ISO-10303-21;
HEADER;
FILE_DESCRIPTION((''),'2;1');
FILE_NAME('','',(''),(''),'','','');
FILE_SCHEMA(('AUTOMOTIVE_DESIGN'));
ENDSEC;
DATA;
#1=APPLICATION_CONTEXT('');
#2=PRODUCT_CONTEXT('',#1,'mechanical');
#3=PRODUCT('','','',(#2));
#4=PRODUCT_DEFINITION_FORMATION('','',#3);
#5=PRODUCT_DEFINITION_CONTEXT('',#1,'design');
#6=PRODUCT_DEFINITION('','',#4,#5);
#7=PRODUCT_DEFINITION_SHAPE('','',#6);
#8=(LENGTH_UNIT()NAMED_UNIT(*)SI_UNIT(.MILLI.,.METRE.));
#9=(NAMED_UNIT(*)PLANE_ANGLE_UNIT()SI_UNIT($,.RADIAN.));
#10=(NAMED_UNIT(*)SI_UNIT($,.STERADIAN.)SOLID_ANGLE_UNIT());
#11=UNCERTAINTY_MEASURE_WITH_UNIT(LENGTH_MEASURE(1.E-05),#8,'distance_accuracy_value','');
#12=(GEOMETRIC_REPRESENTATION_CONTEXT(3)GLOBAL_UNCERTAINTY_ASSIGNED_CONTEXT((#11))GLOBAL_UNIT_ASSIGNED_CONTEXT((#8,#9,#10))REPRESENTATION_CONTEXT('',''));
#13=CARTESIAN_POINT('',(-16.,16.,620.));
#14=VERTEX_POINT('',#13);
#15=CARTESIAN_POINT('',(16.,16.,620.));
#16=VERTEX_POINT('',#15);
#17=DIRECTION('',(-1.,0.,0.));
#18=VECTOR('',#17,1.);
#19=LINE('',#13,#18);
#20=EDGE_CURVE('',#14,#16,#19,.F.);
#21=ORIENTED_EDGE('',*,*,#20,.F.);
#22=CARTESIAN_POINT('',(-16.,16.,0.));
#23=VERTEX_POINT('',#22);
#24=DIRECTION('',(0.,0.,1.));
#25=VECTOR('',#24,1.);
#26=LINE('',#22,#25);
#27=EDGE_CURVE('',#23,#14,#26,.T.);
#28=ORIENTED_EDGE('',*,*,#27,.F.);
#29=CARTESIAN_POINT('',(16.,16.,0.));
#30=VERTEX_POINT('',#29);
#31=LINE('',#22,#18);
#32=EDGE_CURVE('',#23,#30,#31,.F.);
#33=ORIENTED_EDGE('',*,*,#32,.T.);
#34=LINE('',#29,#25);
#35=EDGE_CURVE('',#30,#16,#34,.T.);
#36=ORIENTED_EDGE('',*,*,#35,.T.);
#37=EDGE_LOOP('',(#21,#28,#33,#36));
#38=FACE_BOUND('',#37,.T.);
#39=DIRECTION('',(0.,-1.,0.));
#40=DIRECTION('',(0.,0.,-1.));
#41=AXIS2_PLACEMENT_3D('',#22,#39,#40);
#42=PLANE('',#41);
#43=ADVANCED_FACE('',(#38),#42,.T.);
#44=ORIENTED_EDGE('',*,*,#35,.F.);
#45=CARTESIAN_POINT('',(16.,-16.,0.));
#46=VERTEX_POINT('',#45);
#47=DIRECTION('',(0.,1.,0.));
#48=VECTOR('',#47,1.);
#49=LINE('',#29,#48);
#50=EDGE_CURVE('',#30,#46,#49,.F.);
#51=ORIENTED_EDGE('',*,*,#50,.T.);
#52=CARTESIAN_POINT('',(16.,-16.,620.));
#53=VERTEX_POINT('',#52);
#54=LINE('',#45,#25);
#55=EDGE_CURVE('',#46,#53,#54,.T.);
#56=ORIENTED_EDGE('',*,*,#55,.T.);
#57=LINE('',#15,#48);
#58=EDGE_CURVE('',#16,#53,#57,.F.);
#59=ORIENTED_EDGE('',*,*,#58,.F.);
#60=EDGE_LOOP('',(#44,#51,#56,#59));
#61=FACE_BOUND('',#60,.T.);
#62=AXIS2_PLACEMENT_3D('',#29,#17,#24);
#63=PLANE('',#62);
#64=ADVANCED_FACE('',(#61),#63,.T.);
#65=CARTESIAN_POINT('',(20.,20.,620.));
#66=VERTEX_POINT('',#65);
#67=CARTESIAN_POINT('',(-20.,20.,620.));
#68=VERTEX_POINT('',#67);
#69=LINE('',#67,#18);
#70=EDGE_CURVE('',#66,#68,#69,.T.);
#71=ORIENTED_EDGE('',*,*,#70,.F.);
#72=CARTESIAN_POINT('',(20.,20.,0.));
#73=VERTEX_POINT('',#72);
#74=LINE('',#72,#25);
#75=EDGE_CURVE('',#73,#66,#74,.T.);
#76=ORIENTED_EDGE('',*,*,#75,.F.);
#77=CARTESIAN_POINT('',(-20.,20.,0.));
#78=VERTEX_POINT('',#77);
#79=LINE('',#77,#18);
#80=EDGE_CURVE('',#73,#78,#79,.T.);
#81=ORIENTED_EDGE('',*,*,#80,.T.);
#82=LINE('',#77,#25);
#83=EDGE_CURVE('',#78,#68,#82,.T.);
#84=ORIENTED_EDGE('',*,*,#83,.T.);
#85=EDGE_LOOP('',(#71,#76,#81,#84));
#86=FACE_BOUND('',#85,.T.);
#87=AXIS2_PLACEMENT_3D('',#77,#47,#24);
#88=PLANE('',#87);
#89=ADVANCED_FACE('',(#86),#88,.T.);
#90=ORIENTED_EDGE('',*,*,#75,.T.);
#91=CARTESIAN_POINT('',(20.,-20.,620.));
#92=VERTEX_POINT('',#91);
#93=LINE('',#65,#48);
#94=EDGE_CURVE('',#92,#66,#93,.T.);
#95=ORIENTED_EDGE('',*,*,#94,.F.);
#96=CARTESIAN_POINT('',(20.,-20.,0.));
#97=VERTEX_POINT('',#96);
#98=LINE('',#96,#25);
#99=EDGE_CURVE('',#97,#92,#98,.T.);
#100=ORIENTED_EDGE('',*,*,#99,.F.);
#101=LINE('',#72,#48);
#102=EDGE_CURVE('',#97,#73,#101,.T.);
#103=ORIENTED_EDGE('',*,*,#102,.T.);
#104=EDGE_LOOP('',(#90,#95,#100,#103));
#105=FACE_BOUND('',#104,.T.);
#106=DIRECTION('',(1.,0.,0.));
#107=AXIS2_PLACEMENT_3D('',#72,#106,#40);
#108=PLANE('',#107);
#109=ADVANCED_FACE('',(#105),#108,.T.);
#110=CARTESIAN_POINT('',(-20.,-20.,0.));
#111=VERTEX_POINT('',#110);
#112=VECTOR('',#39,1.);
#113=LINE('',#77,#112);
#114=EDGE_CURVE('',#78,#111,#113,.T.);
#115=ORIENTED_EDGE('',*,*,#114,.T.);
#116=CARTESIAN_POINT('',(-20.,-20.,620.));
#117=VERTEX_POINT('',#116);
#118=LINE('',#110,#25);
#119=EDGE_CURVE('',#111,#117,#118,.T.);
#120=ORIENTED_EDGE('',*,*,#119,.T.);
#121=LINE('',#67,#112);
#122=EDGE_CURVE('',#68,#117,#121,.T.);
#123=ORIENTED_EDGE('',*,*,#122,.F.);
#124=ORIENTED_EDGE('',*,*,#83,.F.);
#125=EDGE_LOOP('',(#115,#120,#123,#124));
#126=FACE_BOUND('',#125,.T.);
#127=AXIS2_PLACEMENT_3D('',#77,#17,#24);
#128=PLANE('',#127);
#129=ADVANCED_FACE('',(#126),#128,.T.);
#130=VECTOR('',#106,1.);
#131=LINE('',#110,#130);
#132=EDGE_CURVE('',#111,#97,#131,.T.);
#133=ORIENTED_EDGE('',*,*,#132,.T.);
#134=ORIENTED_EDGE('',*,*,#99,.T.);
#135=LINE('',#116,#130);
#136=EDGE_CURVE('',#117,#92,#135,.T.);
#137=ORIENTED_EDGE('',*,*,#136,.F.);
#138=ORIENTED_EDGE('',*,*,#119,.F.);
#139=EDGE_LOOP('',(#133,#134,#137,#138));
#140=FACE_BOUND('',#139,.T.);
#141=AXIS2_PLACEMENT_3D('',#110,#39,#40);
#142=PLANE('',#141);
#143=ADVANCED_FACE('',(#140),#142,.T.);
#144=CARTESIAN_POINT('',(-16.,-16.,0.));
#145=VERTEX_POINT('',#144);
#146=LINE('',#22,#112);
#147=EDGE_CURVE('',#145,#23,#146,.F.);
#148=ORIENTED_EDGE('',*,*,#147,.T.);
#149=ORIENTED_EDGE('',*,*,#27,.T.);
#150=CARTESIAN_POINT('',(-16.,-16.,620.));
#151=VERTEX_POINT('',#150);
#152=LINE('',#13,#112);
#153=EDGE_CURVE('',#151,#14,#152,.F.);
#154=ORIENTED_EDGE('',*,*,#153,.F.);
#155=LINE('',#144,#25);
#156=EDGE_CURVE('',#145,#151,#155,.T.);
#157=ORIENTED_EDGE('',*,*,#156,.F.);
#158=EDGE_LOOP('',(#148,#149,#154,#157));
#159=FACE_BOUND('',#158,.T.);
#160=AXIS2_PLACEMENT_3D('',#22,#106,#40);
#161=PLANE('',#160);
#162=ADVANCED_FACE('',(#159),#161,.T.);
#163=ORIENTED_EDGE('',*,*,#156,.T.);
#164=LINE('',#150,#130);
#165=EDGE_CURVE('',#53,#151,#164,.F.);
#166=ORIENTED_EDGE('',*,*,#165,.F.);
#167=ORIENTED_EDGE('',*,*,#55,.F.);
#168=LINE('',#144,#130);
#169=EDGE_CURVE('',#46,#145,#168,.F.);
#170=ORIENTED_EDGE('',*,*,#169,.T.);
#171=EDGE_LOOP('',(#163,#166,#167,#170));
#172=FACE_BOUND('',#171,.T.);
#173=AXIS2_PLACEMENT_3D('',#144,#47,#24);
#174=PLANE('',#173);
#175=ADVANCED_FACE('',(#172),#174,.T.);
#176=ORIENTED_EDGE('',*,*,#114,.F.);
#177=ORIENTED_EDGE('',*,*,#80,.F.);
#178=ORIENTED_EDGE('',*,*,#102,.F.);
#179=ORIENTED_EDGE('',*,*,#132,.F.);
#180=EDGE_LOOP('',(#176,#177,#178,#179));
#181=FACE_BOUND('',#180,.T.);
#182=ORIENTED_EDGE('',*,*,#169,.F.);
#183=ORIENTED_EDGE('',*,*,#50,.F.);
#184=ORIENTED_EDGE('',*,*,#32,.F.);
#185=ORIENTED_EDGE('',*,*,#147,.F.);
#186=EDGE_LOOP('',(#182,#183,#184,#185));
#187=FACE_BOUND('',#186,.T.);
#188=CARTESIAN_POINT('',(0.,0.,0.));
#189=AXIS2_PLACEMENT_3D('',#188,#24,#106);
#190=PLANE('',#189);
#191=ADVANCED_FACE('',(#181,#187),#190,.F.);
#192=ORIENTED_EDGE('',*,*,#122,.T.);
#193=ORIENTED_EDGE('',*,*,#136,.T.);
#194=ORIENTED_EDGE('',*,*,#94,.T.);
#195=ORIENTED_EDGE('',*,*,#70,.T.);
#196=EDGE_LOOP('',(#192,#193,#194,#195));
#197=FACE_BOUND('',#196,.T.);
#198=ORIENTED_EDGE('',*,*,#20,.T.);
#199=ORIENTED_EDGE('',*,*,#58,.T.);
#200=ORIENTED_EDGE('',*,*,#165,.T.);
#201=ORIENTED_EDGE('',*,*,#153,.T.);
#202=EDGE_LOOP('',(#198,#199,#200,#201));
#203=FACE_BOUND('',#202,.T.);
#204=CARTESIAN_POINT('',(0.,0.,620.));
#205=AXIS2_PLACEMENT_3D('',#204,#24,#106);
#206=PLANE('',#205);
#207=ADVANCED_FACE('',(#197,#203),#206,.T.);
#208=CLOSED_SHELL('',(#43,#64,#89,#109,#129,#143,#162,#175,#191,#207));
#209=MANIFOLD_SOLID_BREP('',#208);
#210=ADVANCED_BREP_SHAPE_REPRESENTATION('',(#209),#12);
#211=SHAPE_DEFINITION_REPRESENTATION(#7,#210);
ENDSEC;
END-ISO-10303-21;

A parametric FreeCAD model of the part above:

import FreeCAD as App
import Part
import Sketcher

V = App.Vector
Q = App.Units.Quantity


def add_polygon(sketch, points):
    """Adds a closed chain of lines whose ends are joined by coincident constraints."""
    first, n = sketch.GeometryCount, len(points)
    for a, b in zip(points, points[1:] + points[:1]):
        sketch.addGeometry(Part.LineSegment(App.Vector(*a, 0), App.Vector(*b, 0)), False)
    for i in range(n):
        sketch.addConstraint(Sketcher.Constraint("Coincident", first + i, 2, first + (i + 1) % n, 1))

doc = App.newDocument("Part")
params = doc.addObject("Spreadsheet::Sheet", "Params")
for row, (alias, value) in enumerate([
    ("sketch1_width", "40 mm"),
    ("sketch1_width2", "32 mm"),
], start=1):
    params.set(f"A{row}", alias)
    params.set(f"B{row}", "=" + value)
    params.setAlias(f"B{row}", alias)

body = doc.addObject("PartDesign::Body", "Body")

# Sketch on XY plane
sketch1 = doc.addObject("Sketcher::SketchObject", "Sketch")
body.addObject(sketch1)
sketch1.AttachmentSupport = (doc.XY_Plane, [""])
sketch1.MapMode = "FlatFace"
add_polygon(sketch1, [(-20, 20), (-20, -20), (20, -20), (20, 20)])  # lines 0-3
add_polygon(sketch1, [(16, -16), (-16, -16), (-16, 16), (16, 16)])  # lines 4-7
sketch1.addConstraint(Sketcher.Constraint("Vertical", 0))
sketch1.addConstraint(Sketcher.Constraint("Horizontal", 1))
sketch1.addConstraint(Sketcher.Constraint("Vertical", 2))
sketch1.addConstraint(Sketcher.Constraint("Horizontal", 3))
sketch1.addConstraint(Sketcher.Constraint("Horizontal", 4))
sketch1.addConstraint(Sketcher.Constraint("Vertical", 5))
sketch1.addConstraint(Sketcher.Constraint("Horizontal", 6))
sketch1.addConstraint(Sketcher.Constraint("Vertical", 7))
sketch1.addConstraint(Sketcher.Constraint("Symmetric", 0, 2, 2, 2, -1, 1))
sketch1.addConstraint(Sketcher.Constraint("Symmetric", 4, 2, 6, 2, -1, 1))
sketch1.addConstraint(Sketcher.Constraint("Equal", 3, 0))
sketch1.addConstraint(Sketcher.Constraint("Equal", 6, 5))
sketch1.addConstraint(Sketcher.Constraint("DistanceX", 1, 1, 1, 2, Q("40 mm")))
sketch1.addConstraint(Sketcher.Constraint("DistanceX", 4, 2, 4, 1, Q("32 mm")))
sketch1.setExpression("Constraints[20]", "Params.sketch1_width")
sketch1.setExpression("Constraints[21]", "Params.sketch1_width2")

# Sketch on XZ plane
sketch2 = doc.addObject("Sketcher::SketchObject", "Sketch001")
body.addObject(sketch2)
sketch2.AttachmentSupport = (doc.XZ_Plane, [""])
sketch2.MapMode = "FlatFace"
sketch2.addGeometry(Part.BSplineCurve([V(0, 0, 0), V(0, 620, 0)], [2, 2], [0, 1], False, 1, [1, 1], False), False)
sketch2.addConstraint(Sketcher.Constraint("Block", 0))
doc.recompute()

additivepipe = doc.addObject("PartDesign::AdditivePipe", "AdditivePipe")
body.addObject(additivepipe)
additivepipe.Profile = sketch1
additivepipe.Spine = (sketch2, ["Edge1"])

doc.recompute()
